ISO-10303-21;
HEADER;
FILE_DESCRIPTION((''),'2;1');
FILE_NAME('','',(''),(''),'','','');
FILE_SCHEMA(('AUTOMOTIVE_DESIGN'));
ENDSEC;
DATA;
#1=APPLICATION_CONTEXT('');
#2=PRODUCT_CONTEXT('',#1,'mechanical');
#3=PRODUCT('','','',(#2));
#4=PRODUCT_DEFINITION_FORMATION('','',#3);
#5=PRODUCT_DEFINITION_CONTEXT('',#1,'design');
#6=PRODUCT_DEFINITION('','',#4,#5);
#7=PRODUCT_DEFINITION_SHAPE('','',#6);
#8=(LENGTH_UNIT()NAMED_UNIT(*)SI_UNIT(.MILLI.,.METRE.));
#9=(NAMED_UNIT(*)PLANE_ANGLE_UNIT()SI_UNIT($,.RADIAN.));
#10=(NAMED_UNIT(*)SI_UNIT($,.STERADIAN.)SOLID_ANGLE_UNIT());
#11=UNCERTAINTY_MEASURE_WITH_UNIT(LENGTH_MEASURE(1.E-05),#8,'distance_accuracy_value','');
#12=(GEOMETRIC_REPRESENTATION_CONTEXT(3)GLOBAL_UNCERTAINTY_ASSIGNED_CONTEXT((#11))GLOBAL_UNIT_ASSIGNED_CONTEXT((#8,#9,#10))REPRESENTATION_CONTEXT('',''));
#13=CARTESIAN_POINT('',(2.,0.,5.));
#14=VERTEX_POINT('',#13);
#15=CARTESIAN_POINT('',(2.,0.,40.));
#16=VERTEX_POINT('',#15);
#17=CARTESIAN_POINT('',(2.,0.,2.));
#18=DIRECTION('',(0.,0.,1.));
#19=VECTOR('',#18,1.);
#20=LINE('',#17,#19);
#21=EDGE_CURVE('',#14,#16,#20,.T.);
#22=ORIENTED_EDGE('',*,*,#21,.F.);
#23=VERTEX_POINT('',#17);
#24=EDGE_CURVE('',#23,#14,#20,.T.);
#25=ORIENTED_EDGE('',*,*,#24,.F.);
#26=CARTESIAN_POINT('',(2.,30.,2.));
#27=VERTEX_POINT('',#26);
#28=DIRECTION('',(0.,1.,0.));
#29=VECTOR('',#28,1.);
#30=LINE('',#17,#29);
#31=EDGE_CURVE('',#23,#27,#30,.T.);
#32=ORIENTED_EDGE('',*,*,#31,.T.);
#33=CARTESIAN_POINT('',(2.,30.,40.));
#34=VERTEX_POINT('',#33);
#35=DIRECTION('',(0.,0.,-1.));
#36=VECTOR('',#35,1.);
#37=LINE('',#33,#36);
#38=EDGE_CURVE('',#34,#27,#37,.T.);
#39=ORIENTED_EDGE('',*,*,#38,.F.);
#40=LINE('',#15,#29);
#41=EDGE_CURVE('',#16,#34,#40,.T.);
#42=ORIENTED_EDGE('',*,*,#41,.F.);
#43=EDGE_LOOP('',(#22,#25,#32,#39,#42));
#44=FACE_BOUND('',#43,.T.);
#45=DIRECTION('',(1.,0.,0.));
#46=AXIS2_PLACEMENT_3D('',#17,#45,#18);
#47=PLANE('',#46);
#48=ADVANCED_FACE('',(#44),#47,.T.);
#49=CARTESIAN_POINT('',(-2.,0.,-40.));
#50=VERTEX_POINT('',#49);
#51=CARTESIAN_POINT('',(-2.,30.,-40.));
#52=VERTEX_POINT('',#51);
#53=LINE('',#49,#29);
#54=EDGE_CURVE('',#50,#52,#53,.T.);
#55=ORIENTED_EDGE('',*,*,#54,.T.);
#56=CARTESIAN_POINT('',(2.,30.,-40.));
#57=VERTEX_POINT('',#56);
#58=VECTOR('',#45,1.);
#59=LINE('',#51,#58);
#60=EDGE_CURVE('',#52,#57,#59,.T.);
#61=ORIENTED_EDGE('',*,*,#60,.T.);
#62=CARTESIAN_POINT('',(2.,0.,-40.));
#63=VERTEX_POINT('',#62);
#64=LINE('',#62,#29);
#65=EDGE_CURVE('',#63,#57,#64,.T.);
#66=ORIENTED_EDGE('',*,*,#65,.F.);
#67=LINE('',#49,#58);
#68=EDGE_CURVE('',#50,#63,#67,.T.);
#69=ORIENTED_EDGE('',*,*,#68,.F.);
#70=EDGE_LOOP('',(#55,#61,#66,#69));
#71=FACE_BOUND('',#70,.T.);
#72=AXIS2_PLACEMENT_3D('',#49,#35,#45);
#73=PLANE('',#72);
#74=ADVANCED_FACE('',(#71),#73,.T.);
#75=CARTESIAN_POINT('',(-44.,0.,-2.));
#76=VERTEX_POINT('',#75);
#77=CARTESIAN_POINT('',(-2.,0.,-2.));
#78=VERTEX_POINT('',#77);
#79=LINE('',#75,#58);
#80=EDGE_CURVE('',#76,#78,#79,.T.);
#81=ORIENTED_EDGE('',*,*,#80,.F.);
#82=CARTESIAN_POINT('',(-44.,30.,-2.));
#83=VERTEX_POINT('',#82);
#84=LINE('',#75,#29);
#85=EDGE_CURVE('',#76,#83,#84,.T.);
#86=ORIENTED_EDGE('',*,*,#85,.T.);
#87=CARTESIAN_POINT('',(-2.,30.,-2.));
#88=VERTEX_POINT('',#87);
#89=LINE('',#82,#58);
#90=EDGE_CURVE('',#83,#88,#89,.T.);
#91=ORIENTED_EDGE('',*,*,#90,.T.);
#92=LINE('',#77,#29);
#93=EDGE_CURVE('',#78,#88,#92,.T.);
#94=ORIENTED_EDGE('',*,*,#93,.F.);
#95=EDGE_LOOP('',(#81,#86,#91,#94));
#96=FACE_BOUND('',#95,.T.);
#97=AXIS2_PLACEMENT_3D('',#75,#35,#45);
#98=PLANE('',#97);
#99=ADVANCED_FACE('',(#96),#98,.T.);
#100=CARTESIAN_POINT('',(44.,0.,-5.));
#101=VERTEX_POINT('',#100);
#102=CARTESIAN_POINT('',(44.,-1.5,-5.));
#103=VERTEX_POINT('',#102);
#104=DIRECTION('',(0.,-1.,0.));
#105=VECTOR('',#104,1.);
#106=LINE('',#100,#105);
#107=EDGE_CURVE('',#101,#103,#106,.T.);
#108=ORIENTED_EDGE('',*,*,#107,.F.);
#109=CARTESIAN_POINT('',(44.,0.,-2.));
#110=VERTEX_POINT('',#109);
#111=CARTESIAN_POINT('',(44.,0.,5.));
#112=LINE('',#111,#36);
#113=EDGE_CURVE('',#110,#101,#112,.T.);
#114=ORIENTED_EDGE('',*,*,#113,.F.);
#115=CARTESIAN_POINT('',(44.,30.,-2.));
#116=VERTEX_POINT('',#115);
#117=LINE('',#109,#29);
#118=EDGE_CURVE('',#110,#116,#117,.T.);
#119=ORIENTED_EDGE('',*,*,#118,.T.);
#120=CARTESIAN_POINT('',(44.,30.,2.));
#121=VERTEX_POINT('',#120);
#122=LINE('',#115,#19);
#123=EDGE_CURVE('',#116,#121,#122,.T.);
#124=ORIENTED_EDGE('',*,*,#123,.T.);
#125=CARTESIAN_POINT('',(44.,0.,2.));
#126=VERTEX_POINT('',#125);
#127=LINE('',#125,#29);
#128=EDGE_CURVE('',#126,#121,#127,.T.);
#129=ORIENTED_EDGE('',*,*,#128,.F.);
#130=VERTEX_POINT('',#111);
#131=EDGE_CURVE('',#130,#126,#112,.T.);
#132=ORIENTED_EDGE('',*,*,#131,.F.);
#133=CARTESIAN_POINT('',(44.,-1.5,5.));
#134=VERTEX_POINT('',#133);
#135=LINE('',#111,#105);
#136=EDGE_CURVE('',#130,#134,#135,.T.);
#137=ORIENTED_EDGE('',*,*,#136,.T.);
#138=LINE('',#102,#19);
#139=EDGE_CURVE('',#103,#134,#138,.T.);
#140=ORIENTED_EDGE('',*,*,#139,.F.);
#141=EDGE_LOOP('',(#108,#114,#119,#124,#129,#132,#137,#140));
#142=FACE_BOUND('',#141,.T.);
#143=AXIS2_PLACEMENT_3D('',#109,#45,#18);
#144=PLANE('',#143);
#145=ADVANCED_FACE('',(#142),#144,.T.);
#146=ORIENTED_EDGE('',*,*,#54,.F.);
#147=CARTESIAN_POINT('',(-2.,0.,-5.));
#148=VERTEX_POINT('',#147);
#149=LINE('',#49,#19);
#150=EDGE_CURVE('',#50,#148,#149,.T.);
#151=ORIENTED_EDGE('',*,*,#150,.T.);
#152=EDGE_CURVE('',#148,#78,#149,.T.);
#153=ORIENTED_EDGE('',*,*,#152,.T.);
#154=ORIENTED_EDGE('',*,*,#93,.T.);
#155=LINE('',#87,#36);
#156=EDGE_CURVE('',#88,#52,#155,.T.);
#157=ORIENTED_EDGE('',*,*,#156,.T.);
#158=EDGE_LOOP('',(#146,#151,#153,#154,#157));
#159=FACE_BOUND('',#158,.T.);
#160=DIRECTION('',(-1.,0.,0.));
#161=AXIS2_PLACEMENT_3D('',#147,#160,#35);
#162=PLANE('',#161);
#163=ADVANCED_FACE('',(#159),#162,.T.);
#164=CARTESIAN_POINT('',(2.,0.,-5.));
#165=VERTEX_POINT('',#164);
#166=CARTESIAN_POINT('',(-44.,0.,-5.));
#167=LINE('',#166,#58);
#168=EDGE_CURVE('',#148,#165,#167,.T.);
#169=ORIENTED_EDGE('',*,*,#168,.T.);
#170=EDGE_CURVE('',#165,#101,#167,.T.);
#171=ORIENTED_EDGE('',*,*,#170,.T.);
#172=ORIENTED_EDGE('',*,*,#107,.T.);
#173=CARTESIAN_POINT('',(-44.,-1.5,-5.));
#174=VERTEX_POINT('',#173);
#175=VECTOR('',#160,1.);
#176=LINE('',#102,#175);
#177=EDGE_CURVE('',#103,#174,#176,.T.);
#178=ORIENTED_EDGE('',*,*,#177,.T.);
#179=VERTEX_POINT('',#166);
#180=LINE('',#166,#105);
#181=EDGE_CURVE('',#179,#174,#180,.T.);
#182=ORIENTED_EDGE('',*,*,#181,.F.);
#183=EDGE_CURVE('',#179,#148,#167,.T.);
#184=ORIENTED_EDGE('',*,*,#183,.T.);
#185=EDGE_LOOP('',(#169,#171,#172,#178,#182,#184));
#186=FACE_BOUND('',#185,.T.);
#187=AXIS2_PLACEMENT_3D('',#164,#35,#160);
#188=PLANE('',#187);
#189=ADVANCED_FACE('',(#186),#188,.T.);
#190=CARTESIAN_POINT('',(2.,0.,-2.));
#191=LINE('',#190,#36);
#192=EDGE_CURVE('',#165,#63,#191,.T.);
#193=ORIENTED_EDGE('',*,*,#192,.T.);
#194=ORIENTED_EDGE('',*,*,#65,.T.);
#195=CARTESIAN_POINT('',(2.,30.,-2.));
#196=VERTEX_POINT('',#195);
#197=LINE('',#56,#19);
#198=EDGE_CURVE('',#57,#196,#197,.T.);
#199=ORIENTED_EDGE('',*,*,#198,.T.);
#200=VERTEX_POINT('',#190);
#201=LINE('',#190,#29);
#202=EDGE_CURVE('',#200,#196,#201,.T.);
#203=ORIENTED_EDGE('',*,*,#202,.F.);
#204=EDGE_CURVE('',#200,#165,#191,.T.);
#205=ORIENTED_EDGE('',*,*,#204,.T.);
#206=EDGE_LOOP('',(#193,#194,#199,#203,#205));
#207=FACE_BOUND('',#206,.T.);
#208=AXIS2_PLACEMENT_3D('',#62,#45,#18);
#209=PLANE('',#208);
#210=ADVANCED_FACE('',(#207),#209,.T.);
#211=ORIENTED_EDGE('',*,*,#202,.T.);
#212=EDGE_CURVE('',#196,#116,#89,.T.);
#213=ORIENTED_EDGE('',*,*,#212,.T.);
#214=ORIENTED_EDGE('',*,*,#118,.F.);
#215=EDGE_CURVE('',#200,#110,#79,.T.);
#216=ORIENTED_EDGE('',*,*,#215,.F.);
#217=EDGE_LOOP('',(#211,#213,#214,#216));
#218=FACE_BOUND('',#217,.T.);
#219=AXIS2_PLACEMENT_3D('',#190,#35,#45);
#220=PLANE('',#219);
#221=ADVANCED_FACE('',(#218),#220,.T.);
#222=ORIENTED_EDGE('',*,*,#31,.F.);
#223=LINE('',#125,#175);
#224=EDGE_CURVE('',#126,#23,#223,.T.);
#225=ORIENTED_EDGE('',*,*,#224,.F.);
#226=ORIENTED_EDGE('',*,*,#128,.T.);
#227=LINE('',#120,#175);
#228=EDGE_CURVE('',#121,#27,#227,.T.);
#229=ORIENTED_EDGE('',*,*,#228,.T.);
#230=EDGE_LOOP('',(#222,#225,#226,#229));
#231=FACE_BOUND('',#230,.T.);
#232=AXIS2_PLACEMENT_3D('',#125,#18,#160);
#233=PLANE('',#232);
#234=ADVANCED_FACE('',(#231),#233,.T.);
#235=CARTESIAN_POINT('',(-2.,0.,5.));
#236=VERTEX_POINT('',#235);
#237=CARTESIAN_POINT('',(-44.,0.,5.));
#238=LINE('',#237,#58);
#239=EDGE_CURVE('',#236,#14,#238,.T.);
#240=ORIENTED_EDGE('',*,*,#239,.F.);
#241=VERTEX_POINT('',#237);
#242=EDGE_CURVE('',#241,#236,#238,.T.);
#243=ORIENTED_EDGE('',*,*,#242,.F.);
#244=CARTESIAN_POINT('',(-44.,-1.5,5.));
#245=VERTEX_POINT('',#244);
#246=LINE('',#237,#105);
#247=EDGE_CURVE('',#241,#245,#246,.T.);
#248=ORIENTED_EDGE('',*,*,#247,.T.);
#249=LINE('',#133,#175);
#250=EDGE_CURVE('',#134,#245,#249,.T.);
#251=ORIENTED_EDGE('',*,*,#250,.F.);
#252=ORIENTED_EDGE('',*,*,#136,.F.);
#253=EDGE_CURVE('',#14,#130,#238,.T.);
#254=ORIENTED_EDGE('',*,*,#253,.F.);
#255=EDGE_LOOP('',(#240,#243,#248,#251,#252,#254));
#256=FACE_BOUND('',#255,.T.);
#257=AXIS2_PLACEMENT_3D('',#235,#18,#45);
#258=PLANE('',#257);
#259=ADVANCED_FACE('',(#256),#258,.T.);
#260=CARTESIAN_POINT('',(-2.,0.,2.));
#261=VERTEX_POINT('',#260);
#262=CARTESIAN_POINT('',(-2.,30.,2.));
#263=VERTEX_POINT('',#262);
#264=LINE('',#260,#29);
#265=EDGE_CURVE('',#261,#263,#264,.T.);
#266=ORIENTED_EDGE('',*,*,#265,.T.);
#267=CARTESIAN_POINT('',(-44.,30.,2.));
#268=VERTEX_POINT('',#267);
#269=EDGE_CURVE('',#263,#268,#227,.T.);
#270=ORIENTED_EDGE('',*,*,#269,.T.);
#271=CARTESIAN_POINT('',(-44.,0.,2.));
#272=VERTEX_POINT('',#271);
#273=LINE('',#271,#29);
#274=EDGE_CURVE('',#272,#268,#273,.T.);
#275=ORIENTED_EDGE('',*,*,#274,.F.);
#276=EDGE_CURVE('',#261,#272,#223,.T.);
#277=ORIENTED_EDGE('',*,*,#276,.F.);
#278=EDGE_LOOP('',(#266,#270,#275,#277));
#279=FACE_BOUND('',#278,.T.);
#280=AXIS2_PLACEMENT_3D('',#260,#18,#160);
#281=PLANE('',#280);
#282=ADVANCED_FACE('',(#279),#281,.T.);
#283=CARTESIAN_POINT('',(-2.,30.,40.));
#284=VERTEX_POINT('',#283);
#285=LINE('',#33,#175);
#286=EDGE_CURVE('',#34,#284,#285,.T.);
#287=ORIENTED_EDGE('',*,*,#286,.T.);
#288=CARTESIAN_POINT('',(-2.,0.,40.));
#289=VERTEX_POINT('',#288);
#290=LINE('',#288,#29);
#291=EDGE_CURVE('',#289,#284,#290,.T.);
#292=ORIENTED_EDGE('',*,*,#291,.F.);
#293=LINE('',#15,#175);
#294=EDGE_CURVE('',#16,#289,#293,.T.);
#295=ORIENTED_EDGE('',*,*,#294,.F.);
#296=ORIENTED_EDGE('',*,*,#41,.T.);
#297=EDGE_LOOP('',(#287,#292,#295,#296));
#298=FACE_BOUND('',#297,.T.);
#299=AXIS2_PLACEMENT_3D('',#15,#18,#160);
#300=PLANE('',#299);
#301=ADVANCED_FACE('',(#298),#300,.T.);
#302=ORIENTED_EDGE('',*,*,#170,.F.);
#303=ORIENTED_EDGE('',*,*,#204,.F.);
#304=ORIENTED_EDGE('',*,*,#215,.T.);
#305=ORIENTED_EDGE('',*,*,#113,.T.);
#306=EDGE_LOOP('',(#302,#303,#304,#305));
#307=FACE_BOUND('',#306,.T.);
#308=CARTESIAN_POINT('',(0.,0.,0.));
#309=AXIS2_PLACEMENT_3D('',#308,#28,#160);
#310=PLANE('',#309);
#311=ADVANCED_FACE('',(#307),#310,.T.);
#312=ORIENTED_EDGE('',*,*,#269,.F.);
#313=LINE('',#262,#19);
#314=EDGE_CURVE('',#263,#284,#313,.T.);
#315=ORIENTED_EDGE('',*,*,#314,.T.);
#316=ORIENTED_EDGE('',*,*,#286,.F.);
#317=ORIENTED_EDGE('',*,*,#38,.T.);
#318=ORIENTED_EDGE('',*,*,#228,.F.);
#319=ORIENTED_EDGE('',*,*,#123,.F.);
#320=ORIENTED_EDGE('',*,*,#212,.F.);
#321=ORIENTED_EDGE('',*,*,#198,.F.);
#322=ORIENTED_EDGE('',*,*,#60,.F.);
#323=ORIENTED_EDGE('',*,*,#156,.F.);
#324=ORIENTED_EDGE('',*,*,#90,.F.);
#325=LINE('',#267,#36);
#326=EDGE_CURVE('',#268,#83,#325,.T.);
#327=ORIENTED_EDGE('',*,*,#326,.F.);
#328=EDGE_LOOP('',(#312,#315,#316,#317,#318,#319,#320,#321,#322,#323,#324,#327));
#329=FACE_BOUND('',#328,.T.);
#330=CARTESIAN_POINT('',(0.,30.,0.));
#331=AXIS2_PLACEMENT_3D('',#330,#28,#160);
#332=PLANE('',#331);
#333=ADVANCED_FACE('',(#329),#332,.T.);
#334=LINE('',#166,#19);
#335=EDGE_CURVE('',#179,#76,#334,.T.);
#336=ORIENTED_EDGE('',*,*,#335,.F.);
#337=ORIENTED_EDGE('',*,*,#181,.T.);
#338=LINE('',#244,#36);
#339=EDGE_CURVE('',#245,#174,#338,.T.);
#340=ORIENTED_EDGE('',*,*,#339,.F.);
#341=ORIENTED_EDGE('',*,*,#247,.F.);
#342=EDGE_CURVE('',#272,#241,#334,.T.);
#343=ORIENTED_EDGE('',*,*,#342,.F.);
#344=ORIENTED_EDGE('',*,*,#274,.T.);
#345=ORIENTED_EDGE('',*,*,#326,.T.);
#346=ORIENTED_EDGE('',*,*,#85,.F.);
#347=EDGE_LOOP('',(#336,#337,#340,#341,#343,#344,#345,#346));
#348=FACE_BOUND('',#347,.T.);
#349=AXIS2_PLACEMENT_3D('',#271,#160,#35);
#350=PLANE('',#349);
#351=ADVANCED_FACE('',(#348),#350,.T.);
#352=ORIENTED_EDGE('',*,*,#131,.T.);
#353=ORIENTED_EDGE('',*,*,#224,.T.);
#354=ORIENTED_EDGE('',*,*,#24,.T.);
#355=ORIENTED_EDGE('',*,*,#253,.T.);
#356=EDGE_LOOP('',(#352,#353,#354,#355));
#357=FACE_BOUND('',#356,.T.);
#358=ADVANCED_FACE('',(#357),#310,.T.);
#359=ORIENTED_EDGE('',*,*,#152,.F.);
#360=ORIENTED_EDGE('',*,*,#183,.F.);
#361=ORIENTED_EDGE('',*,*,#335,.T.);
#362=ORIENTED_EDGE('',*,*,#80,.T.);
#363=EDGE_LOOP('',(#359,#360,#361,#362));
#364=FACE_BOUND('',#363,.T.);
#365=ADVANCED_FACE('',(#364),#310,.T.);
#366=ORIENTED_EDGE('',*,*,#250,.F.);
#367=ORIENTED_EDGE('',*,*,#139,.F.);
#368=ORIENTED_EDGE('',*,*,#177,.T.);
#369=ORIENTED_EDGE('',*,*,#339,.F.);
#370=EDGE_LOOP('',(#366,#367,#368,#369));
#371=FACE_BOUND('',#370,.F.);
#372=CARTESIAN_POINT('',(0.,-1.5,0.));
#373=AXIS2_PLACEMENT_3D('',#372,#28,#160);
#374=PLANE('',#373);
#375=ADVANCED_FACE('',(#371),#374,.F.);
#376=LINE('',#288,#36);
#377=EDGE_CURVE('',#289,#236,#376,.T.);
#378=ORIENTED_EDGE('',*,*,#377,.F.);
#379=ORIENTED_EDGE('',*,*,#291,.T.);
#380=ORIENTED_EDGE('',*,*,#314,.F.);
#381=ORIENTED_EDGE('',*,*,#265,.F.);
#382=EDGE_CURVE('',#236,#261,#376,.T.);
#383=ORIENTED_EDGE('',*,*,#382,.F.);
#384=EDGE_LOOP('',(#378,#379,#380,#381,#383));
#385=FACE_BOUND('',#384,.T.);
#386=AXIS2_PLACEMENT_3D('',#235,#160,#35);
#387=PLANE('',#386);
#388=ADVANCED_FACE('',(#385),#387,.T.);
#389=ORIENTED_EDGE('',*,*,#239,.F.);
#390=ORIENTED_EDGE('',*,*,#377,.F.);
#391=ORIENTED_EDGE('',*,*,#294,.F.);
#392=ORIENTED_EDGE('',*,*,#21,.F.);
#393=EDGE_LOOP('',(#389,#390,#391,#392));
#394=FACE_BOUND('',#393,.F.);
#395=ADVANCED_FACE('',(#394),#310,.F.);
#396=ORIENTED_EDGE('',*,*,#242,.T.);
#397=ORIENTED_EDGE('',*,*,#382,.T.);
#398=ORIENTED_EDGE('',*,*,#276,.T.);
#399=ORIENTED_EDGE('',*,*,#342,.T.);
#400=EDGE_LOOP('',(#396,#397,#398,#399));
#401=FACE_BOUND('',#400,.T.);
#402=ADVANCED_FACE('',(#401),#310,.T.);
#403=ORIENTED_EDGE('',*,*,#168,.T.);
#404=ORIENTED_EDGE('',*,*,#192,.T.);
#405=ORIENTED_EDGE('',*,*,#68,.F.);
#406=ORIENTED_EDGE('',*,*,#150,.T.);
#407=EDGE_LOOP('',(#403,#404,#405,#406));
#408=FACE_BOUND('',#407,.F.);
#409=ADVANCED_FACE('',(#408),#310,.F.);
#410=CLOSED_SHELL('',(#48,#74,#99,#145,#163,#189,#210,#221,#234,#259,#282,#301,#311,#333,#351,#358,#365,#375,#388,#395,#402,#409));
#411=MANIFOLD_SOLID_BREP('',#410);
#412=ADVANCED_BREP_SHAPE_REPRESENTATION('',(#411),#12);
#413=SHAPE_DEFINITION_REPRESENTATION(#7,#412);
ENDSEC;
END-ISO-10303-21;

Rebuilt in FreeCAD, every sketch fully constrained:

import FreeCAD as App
import Part
import Sketcher
from FreeCAD import Vector
Q = App.Units.Quantity

doc = App.newDocument("Part")
body = doc.addObject("PartDesign::Body", "Body")

# Sketch on XZ plane
sketch1 = body.newObject("Sketcher::SketchObject", "Sketch")
sketch1.AttachmentSupport = (doc.getObject("XZ_Plane"), [""])
sketch1.MapMode = "FlatFace"
sketch1.addGeometry([
    Part.LineSegment(Vector(2, -40, 0), Vector(-2, -40, 0)),  # 0
    Part.LineSegment(Vector(-2, -40, 0), Vector(-2, -2, 0)),  # 1
    Part.LineSegment(Vector(-2, -2, 0), Vector(-44, -2, 0)),  # 2
    Part.LineSegment(Vector(-44, -2, 0), Vector(-44, 2, 0)),  # 3
    Part.LineSegment(Vector(-44, 2, 0), Vector(-2, 2, 0)),  # 4
    Part.LineSegment(Vector(-2, 2, 0), Vector(-2, 40, 0)),  # 5
    Part.LineSegment(Vector(-2, 40, 0), Vector(2, 40, 0)),  # 6
    Part.LineSegment(Vector(2, 40, 0), Vector(2, 2, 0)),  # 7
    Part.LineSegment(Vector(2, 2, 0), Vector(44, 2, 0)),  # 8
    Part.LineSegment(Vector(44, 2, 0), Vector(44, -2, 0)),  # 9
    Part.LineSegment(Vector(44, -2, 0), Vector(2, -2, 0)),  # 10
    Part.LineSegment(Vector(2, -2, 0), Vector(2, -40, 0)),  # 11
], False)
sketch1.addConstraint([
    Sketcher.Constraint("Coincident", 0, 2, 1, 1),
    Sketcher.Constraint("Coincident", 1, 2, 2, 1),
    Sketcher.Constraint("Coincident", 2, 2, 3, 1),
    Sketcher.Constraint("Coincident", 3, 2, 4, 1),
    Sketcher.Constraint("Coincident", 4, 2, 5, 1),
    Sketcher.Constraint("Coincident", 5, 2, 6, 1),
    Sketcher.Constraint("Coincident", 6, 2, 7, 1),
    Sketcher.Constraint("Coincident", 7, 2, 8, 1),
    Sketcher.Constraint("Coincident", 8, 2, 9, 1),
    Sketcher.Constraint("Coincident", 9, 2, 10, 1),
    Sketcher.Constraint("Coincident", 10, 2, 11, 1),
    Sketcher.Constraint("Coincident", 11, 2, 0, 1),
    Sketcher.Constraint("Horizontal", 0),
    Sketcher.Constraint("Vertical", 1),
    Sketcher.Constraint("Horizontal", 2),
    Sketcher.Constraint("Vertical", 3),
    Sketcher.Constraint("Horizontal", 4),
    Sketcher.Constraint("Vertical", 5),
    Sketcher.Constraint("Horizontal", 6),
    Sketcher.Constraint("Vertical", 7),
    Sketcher.Constraint("Horizontal", 8),
    Sketcher.Constraint("Vertical", 9),
    Sketcher.Constraint("Horizontal", 10),
    Sketcher.Constraint("Vertical", 11),
    Sketcher.Constraint("Symmetric", 0, 2, 6, 2, -1, 1),
    Sketcher.Constraint("Symmetric", 2, 2, 8, 2, -1, 1),
    Sketcher.Constraint("Symmetric", 4, 2, 10, 2, -1, 1),
    Sketcher.Constraint("Symmetric", 4, 2, 7, 2, -2),
    Sketcher.Constraint("Equal", 6, 3),
    Sketcher.Constraint("DistanceX", 0, 2, 0, 1, Q("4 mm")),
    Sketcher.Constraint("DistanceY", 0, 2, 5, 2, Q("80 mm")),
    Sketcher.Constraint("DistanceX", 2, 2, 2, 1, Q("42 mm")),
])
pad1 = body.newObject("PartDesign::Pad", "Pad")
pad1.Profile = sketch1
pad1.Length = 30
pad1.Reversed = True

# Sketch on XZ plane
sketch2 = body.newObject("Sketcher::SketchObject", "Sketch001")
sketch2.AttachmentSupport = (doc.getObject("XZ_Plane"), [""])
sketch2.MapMode = "FlatFace"
sketch2.addGeometry([
    Part.LineSegment(Vector(-44, -5, 0), Vector(-44, 5, 0)),
    Part.LineSegment(Vector(-44, 5, 0), Vector(44, 5, 0)),
    Part.LineSegment(Vector(44, 5, 0), Vector(44, -5, 0)),
    Part.LineSegment(Vector(44, -5, 0), Vector(-44, -5, 0)),
], False)
sketch2.addConstraint([
    Sketcher.Constraint("Coincident", 0, 2, 1, 1),
    Sketcher.Constraint("Coincident", 1, 2, 2, 1),
    Sketcher.Constraint("Coincident", 2, 2, 3, 1),
    Sketcher.Constraint("Coincident", 3, 2, 0, 1),
    Sketcher.Constraint("Vertical", 0),
    Sketcher.Constraint("Horizontal", 1),
    Sketcher.Constraint("Vertical", 2),
    Sketcher.Constraint("Horizontal", 3),
    Sketcher.Constraint("Symmetric", 0, 2, 2, 2, -1, 1),
    Sketcher.Constraint("DistanceX", 1, 1, 1, 2, Q("88 mm")),
    Sketcher.Constraint("DistanceY", 0, 1, 0, 2, Q("10 mm")),
])
pad2 = body.newObject("PartDesign::Pad", "Pad001")
pad2.Profile = sketch2
pad2.Length = 1.5

doc.recompute()
